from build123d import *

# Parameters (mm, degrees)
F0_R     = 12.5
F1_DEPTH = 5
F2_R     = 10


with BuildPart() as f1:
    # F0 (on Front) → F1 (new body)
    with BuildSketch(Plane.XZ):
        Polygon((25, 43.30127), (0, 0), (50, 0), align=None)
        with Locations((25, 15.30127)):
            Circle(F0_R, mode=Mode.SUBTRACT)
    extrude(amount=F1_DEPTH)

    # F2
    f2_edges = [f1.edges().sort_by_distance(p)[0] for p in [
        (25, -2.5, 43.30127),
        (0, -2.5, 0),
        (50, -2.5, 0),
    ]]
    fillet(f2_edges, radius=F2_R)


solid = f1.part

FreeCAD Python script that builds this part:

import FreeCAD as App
import Part
import Sketcher
Q = App.Units.Quantity


def edges_at(feature, points):
    """Names of the edges that pass closest to the given points."""
    edges = feature.Shape.Edges
    near = lambda p: min(range(len(edges)), key=lambda i: edges[i].distToShape(Part.Vertex(*p))[0])
    return sorted({f"Edge{near(p) + 1}" for p in points})

doc = App.newDocument("Part")
body = doc.addObject("PartDesign::Body", "Body")

sketch1 = body.newObject("Sketcher::SketchObject", "Sketch")
sketch1.AttachmentSupport = (doc.getObject("XZ_Plane"), [""])
sketch1.MapMode = "FlatFace"
sketch1.addGeometry([
    Part.LineSegment(App.Vector(25, 43, 0), App.Vector(0, 0, 0)),
    Part.LineSegment(App.Vector(0, 0, 0), App.Vector(50, 0, 0)),
    Part.LineSegment(App.Vector(50, 0, 0), App.Vector(25, 43, 0)),
    Part.Circle(App.Vector(25, 15, 0), App.Vector(0, 0, 1), 12),
], False)
sketch1.addConstraint([
    Sketcher.Constraint("Coincident", 0, 2, 1, 1),
    Sketcher.Constraint("Coincident", 1, 2, 2, 1),
    Sketcher.Constraint("Coincident", 2, 2, 0, 1),
    Sketcher.Constraint("Horizontal", 1),
    Sketcher.Constraint("Coincident", 0, 2, -1, 1),
    Sketcher.Constraint("Vertical", 3, 3, 2, 2),
    Sketcher.Constraint("Equal", 0, 2),
    Sketcher.Constraint("Diameter", 3, Q("25 mm")),
    Sketcher.Constraint("DistanceX", 1, 1, 1, 2, Q("50 mm")),
    Sketcher.Constraint("Angle", 0, Q("-120 deg")),
    Sketcher.Constraint("DistanceY", 3, 3, 2, 2, Q("28 mm")),
])
pad1 = body.newObject("PartDesign::Pad", "Pad")
pad1.Profile = sketch1
pad1.Length = 5
doc.recompute()

fillet = body.newObject("PartDesign::Fillet", "Fillet")
fillet.Base = (pad1, edges_at(pad1, [(25, -2.5, 43.301), (0, -2.5, 0), (50, -2.5, 0)]))
fillet.Radius = 10

doc.recompute()
